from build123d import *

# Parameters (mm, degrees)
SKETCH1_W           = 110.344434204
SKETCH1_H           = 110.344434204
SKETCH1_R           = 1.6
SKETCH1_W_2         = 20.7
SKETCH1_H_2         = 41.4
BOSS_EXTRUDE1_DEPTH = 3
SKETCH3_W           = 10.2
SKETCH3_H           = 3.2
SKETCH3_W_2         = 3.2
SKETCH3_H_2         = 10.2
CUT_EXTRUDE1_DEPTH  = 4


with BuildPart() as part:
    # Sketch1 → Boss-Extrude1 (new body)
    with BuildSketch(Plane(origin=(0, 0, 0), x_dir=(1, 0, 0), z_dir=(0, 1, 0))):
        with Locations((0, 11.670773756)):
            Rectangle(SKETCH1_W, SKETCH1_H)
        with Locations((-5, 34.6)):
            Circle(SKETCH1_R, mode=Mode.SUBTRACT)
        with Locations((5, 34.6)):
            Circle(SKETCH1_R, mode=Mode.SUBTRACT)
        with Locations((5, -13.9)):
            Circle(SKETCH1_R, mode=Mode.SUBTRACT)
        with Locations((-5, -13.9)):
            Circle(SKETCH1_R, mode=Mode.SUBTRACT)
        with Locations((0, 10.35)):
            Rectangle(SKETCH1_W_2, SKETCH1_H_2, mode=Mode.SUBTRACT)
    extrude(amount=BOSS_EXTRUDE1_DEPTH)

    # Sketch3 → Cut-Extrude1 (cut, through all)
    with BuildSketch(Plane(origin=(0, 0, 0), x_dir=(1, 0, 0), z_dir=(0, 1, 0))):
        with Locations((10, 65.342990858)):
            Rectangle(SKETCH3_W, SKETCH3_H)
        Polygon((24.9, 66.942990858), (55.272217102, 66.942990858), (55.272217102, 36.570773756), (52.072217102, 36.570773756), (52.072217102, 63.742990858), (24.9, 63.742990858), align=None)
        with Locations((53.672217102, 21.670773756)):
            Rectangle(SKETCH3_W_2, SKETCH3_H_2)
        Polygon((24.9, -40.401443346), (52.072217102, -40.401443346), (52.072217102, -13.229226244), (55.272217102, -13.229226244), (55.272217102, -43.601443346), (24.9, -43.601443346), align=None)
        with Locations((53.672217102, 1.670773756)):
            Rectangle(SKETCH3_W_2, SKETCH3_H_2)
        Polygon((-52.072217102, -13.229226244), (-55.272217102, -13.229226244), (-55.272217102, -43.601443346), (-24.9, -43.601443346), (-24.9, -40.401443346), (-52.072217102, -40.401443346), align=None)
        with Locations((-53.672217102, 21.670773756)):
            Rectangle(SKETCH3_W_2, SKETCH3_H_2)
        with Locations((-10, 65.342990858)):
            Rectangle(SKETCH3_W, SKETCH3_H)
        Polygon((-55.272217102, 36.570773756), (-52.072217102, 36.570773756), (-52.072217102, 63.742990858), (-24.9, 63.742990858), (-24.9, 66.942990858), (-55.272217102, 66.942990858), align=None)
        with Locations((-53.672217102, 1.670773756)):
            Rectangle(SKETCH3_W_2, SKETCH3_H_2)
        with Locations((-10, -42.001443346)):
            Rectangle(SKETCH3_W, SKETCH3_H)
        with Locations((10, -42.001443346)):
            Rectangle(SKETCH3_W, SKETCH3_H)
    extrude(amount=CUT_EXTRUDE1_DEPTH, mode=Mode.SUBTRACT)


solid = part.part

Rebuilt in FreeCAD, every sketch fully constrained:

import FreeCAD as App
import Part
import Sketcher

V = App.Vector

doc = App.newDocument("Part")
body = doc.addObject("PartDesign::Body", "Body")

# Sketch on XZ plane
sketch1 = body.newObject("Sketcher::SketchObject", "Sketch")
sketch1.AttachmentSupport = (doc.getObject("XZ_Plane"), [""])
sketch1.MapMode = "FlatFace"
sketch1.addGeometry([
    Part.LineSegment(V(-55.172217, -66.842991, 0), V(-55.172217, 43.501443, 0)),  # 0
    Part.LineSegment(V(-55.172217, 43.501443, 0), V(55.172217, 43.501443, 0)),  # 1
    Part.LineSegment(V(55.172217, 43.501443, 0), V(55.172217, -66.842991, 0)),  # 2
    Part.LineSegment(V(55.172217, -66.842991, 0), V(-55.172217, -66.842991, 0)),  # 3
    Part.Circle(V(-5, 13.9, 0), V(0, 0, 1), 1.6),  # 4
    Part.Circle(V(5, 13.9, 0), V(0, 0, 1), 1.6),  # 5
    Part.Circle(V(-5, -34.6, 0), V(0, 0, 1), 1.6),  # 6
    Part.LineSegment(V(10.35, 10.35, 0), V(-10.35, 10.35, 0)),  # 7
    Part.LineSegment(V(-10.35, 10.35, 0), V(-10.35, -31.05, 0)),  # 8
    Part.LineSegment(V(-10.35, -31.05, 0), V(10.35, -31.05, 0)),  # 9
    Part.LineSegment(V(10.35, -31.05, 0), V(10.35, 10.35, 0)),  # 10
    Part.Circle(V(5, -34.6, 0), V(0, 0, 1), 1.6),  # 11
], False)
sketch1.addConstraint([
    Sketcher.Constraint("Coincident", 0, 2, 1, 1),
    Sketcher.Constraint("Coincident", 1, 2, 2, 1),
    Sketcher.Constraint("Coincident", 2, 2, 3, 1),
    Sketcher.Constraint("Coincident", 3, 2, 0, 1),
    Sketcher.Constraint("Coincident", 7, 2, 8, 1),
    Sketcher.Constraint("Coincident", 8, 2, 9, 1),
    Sketcher.Constraint("Coincident", 9, 2, 10, 1),
    Sketcher.Constraint("Coincident", 10, 2, 7, 1),
    Sketcher.Constraint("Vertical", 0),
    Sketcher.Constraint("Horizontal", 1),
    Sketcher.Constraint("Vertical", 2),
    Sketcher.Constraint("Horizontal", 3),
    Sketcher.Constraint("Horizontal", 7),
    Sketcher.Constraint("Vertical", 8),
    Sketcher.Constraint("Horizontal", 9),
    Sketcher.Constraint("Vertical", 10),
    Sketcher.Constraint("Equal", 4, 5),
    Sketcher.Constraint("Equal", 5, 6),
    Sketcher.Constraint("Equal", 6, 11),
    Sketcher.Constraint("Symmetric", 4, 3, 5, 3, -2),
    Sketcher.Constraint("Symmetric", 6, 3, 11, 3, -2),
    Sketcher.Constraint("Vertical", 4, 3, 6, 3),
    Sketcher.Constraint("Equal", 3, 0),
    Sketcher.Constraint("Diameter", 4, 3.2),
    Sketcher.Constraint("DistanceX", 7, 2, 7, 1, 20.7),
    Sketcher.Constraint("DistanceY", 8, 2, 8, 1, 41.4),
    Sketcher.Constraint("DistanceX", 4, 3, -1, 1, 5.0),
    Sketcher.Constraint("DistanceY", -1, 1, 4, 3, 13.9),
    Sketcher.Constraint("DistanceY", 6, 3, -1, 1, 34.6),
    Sketcher.Constraint("DistanceX", 7, 2, -1, 1, 10.35),
    Sketcher.Constraint("DistanceY", -1, 1, 7, 2, 10.35),
    Sketcher.Constraint("DistanceX", 1, 1, 1, 2, 110.344434),
    Sketcher.Constraint("DistanceY", 2, 2, -1, 1, 66.842991),
    Sketcher.Constraint("DistanceX", 0, 2, -1, 1, 55.172217),
])
pad1 = body.newObject("PartDesign::Pad", "Pad")
pad1.Profile = sketch1
pad1.Length = 3
pad1.Reversed = True

# Sketch on XZ plane
sketch2 = body.newObject("Sketcher::SketchObject", "Sketch001")
sketch2.AttachmentSupport = (doc.getObject("XZ_Plane"), [""])
sketch2.MapMode = "FlatFace"
sketch2.addGeometry([
    Part.LineSegment(V(4.9, -66.942991, 0), V(4.9, -63.742991, 0)),  # 0
    Part.LineSegment(V(4.9, -63.742991, 0), V(15.1, -63.742991, 0)),  # 1
    Part.LineSegment(V(15.1, -63.742991, 0), V(15.1, -66.942991, 0)),  # 2
    Part.LineSegment(V(15.1, -66.942991, 0), V(4.9, -66.942991, 0)),  # 3
    Part.LineSegment(V(55.272217, -66.942991, 0), V(24.9, -66.942991, 0)),  # 4
    Part.LineSegment(V(24.9, -66.942991, 0), V(24.9, -63.742991, 0)),  # 5
    Part.LineSegment(V(24.9, -63.742991, 0), V(52.072217, -63.742991, 0)),  # 6
    Part.LineSegment(V(52.072217, -63.742991, 0), V(52.072217, -36.570774, 0)),  # 7
    Part.LineSegment(V(52.072217, -36.570774, 0), V(55.272217, -36.570774, 0)),  # 8
    Part.LineSegment(V(55.272217, -36.570774, 0), V(55.272217, -66.942991, 0)),  # 9
    Part.LineSegment(V(52.072217, -26.770774, 0), V(52.072217, -16.570774, 0)),  # 10
    Part.LineSegment(V(52.072217, -16.570774, 0), V(55.272217, -16.570774, 0)),  # 11
    Part.LineSegment(V(55.272217, -16.570774, 0), V(55.272217, -26.770774, 0)),  # 12
    Part.LineSegment(V(55.272217, -26.770774, 0), V(52.072217, -26.770774, 0)),  # 13
    Part.LineSegment(V(52.072217, 40.401443, 0), V(24.9, 40.401443, 0)),  # 14
    Part.LineSegment(V(24.9, 40.401443, 0), V(24.9, 43.601443, 0)),  # 15
    Part.LineSegment(V(24.9, 43.601443, 0), V(55.272217, 43.601443, 0)),  # 16
    Part.LineSegment(V(55.272217, 43.601443, 0), V(55.272217, 13.229226, 0)),  # 17
    Part.LineSegment(V(55.272217, 13.229226, 0), V(52.072217, 13.229226, 0)),  # 18
    Part.LineSegment(V(52.072217, 13.229226, 0), V(52.072217, 40.401443, 0)),  # 19
    Part.LineSegment(V(52.072217, -6.770774, 0), V(52.072217, 3.429226, 0)),  # 20
    Part.LineSegment(V(52.072217, 3.429226, 0), V(55.272217, 3.429226, 0)),  # 21
    Part.LineSegment(V(55.272217, 3.429226, 0), V(55.272217, -6.770774, 0)),  # 22
    Part.LineSegment(V(55.272217, -6.770774, 0), V(52.072217, -6.770774, 0)),  # 23
    Part.LineSegment(V(-52.072217, 13.229226, 0), V(-55.272217, 13.229226, 0)),  # 24
    Part.LineSegment(V(-55.272217, 13.229226, 0), V(-55.272217, 43.601443, 0)),  # 25
    Part.LineSegment(V(-55.272217, 43.601443, 0), V(-24.9, 43.601443, 0)),  # 26
    Part.LineSegment(V(-24.9, 43.601443, 0), V(-24.9, 40.401443, 0)),  # 27
    Part.LineSegment(V(-24.9, 40.401443, 0), V(-52.072217, 40.401443, 0)),  # 28
    Part.LineSegment(V(-52.072217, 40.401443, 0), V(-52.072217, 13.229226, 0)),  # 29
    Part.LineSegment(V(-55.272217, -26.770774, 0), V(-55.272217, -16.570774, 0)),  # 30
    Part.LineSegment(V(-55.272217, -16.570774, 0), V(-52.072217, -16.570774, 0)),  # 31
    Part.LineSegment(V(-52.072217, -16.570774, 0), V(-52.072217, -26.770774, 0)),  # 32
    Part.LineSegment(V(-52.072217, -26.770774, 0), V(-55.272217, -26.770774, 0)),  # 33
    Part.LineSegment(V(-15.1, -66.942991, 0), V(-15.1, -63.742991, 0)),  # 34
    Part.LineSegment(V(-15.1, -63.742991, 0), V(-4.9, -63.742991, 0)),  # 35
    Part.LineSegment(V(-4.9, -63.742991, 0), V(-4.9, -66.942991, 0)),  # 36
    Part.LineSegment(V(-4.9, -66.942991, 0), V(-15.1, -66.942991, 0)),  # 37
    Part.LineSegment(V(-55.272217, -36.570774, 0), V(-52.072217, -36.570774, 0)),  # 38
    Part.LineSegment(V(-52.072217, -36.570774, 0), V(-52.072217, -63.742991, 0)),  # 39
    Part.LineSegment(V(-52.072217, -63.742991, 0), V(-24.9, -63.742991, 0)),  # 40
    Part.LineSegment(V(-24.9, -63.742991, 0), V(-24.9, -66.942991, 0)),  # 41
    Part.LineSegment(V(-24.9, -66.942991, 0), V(-55.272217, -66.942991, 0)),  # 42
    Part.LineSegment(V(-55.272217, -66.942991, 0), V(-55.272217, -36.570774, 0)),  # 43
    Part.LineSegment(V(-55.272217, -6.770774, 0), V(-55.272217, 3.429226, 0)),  # 44
    Part.LineSegment(V(-55.272217, 3.429226, 0), V(-52.072217, 3.429226, 0)),  # 45
    Part.LineSegment(V(-52.072217, 3.429226, 0), V(-52.072217, -6.770774, 0)),  # 46
    Part.LineSegment(V(-52.072217, -6.770774, 0), V(-55.272217, -6.770774, 0)),  # 47
    Part.LineSegment(V(-15.1, 40.401443, 0), V(-15.1, 43.601443, 0)),  # 48
    Part.LineSegment(V(-15.1, 43.601443, 0), V(-4.9, 43.601443, 0)),  # 49
    Part.LineSegment(V(-4.9, 43.601443, 0), V(-4.9, 40.401443, 0)),  # 50
    Part.LineSegment(V(-4.9, 40.401443, 0), V(-15.1, 40.401443, 0)),  # 51
    Part.LineSegment(V(4.9, 40.401443, 0), V(4.9, 43.601443, 0)),  # 52
    Part.LineSegment(V(4.9, 43.601443, 0), V(15.1, 43.601443, 0)),  # 53
    Part.LineSegment(V(15.1, 43.601443, 0), V(15.1, 40.401443, 0)),  # 54
    Part.LineSegment(V(15.1, 40.401443, 0), V(4.9, 40.401443, 0)),  # 55
], False)
sketch2.addConstraint([
    Sketcher.Constraint("Coincident", 0, 2, 1, 1),
    Sketcher.Constraint("Coincident", 1, 2, 2, 1),
    Sketcher.Constraint("Coincident", 2, 2, 3, 1),
    Sketcher.Constraint("Coincident", 3, 2, 0, 1),
    Sketcher.Constraint("Coincident", 4, 2, 5, 1),
    Sketcher.Constraint("Coincident", 5, 2, 6, 1),
    Sketcher.Constraint("Coincident", 6, 2, 7, 1),
    Sketcher.Constraint("Coincident", 7, 2, 8, 1),
    Sketcher.Constraint("Coincident", 8, 2, 9, 1),
    Sketcher.Constraint("Coincident", 9, 2, 4, 1),
    Sketcher.Constraint("Coincident", 10, 2, 11, 1),
    Sketcher.Constraint("Coincident", 11, 2, 12, 1),
    Sketcher.Constraint("Coincident", 12, 2, 13, 1),
    Sketcher.Constraint("Coincident", 13, 2, 10, 1),
    Sketcher.Constraint("Coincident", 14, 2, 15, 1),
    Sketcher.Constraint("Coincident", 15, 2, 16, 1),
    Sketcher.Constraint("Coincident", 16, 2, 17, 1),
    Sketcher.Constraint("Coincident", 17, 2, 18, 1),
    Sketcher.Constraint("Coincident", 18, 2, 19, 1),
    Sketcher.Constraint("Coincident", 19, 2, 14, 1),
    Sketcher.Constraint("Coincident", 20, 2, 21, 1),
    Sketcher.Constraint("Coincident", 21, 2, 22, 1),
    Sketcher.Constraint("Coincident", 22, 2, 23, 1),
    Sketcher.Constraint("Coincident", 23, 2, 20, 1),
    Sketcher.Constraint("Coincident", 24, 2, 25, 1),
    Sketcher.Constraint("Coincident", 25, 2, 26, 1),
    Sketcher.Constraint("Coincident", 26, 2, 27, 1),
    Sketcher.Constraint("Coincident", 27, 2, 28, 1),
    Sketcher.Constraint("Coincident", 28, 2, 29, 1),
    Sketcher.Constraint("Coincident", 29, 2, 24, 1),
    Sketcher.Constraint("Coincident", 30, 2, 31, 1),
    Sketcher.Constraint("Coincident", 31, 2, 32, 1),
    Sketcher.Constraint("Coincident", 32, 2, 33, 1),
    Sketcher.Constraint("Coincident", 33, 2, 30, 1),
    Sketcher.Constraint("Coincident", 34, 2, 35, 1),
    Sketcher.Constraint("Coincident", 35, 2, 36, 1),
    Sketcher.Constraint("Coincident", 36, 2, 37, 1),
    Sketcher.Constraint("Coincident", 37, 2, 34, 1),
    Sketcher.Constraint("Coincident", 38, 2, 39, 1),
    Sketcher.Constraint("Coincident", 39, 2, 40, 1),
    Sketcher.Constraint("Coincident", 40, 2, 41, 1),
    Sketcher.Constraint("Coincident", 41, 2, 42, 1),
    Sketcher.Constraint("Coincident", 42, 2, 43, 1),
    Sketcher.Constraint("Coincident", 43, 2, 38, 1),
    Sketcher.Constraint("Coincident", 44, 2, 45, 1),
    Sketcher.Constraint("Coincident", 45, 2, 46, 1),
    Sketcher.Constraint("Coincident", 46, 2, 47, 1),
    Sketcher.Constraint("Coincident", 47, 2, 44, 1),
    Sketcher.Constraint("Coincident", 48, 2, 49, 1),
    Sketcher.Constraint("Coincident", 49, 2, 50, 1),
    Sketcher.Constraint("Coincident", 50, 2, 51, 1),
    Sketcher.Constraint("Coincident", 51, 2, 48, 1),
    Sketcher.Constraint("Coincident", 52, 2, 53, 1),
    Sketcher.Constraint("Coincident", 53, 2, 54, 1),
    Sketcher.Constraint("Coincident", 54, 2, 55, 1),
    Sketcher.Constraint("Coincident", 55, 2, 52, 1),
    Sketcher.Constraint("Vertical", 0),
    Sketcher.Constraint("Horizontal", 1),
    Sketcher.Constraint("Vertical", 2),
    Sketcher.Constraint("Horizontal", 3),
    Sketcher.Constraint("Horizontal", 4),
    Sketcher.Constraint("Vertical", 5),
    Sketcher.Constraint("Horizontal", 6),
    Sketcher.Constraint("Vertical", 7),
    Sketcher.Constraint("Horizontal", 8),
    Sketcher.Constraint("Vertical", 9),
    Sketcher.Constraint("Vertical", 10),
    Sketcher.Constraint("Horizontal", 11),
    Sketcher.Constraint("Vertical", 12),
    Sketcher.Constraint("Horizontal", 13),
    Sketcher.Constraint("Horizontal", 14),
    Sketcher.Constraint("Vertical", 15),
    Sketcher.Constraint("Horizontal", 16),
    Sketcher.Constraint("Vertical", 17),
    Sketcher.Constraint("Horizontal", 18),
    Sketcher.Constraint("Vertical", 19),
    Sketcher.Constraint("Vertical", 20),
    Sketcher.Constraint("Horizontal", 21),
    Sketcher.Constraint("Vertical", 22),
    Sketcher.Constraint("Horizontal", 23),
    Sketcher.Constraint("Horizontal", 24),
    Sketcher.Constraint("Vertical", 25),
    Sketcher.Constraint("Horizontal", 26),
    Sketcher.Constraint("Vertical", 27),
    Sketcher.Constraint("Horizontal", 28),
    Sketcher.Constraint("Vertical", 29),
    Sketcher.Constraint("Vertical", 30),
    Sketcher.Constraint("Horizontal", 31),
    Sketcher.Constraint("Vertical", 32),
    Sketcher.Constraint("Horizontal", 33),
    Sketcher.Constraint("Vertical", 34),
    Sketcher.Constraint("Horizontal", 35),
    Sketcher.Constraint("Vertical", 36),
    Sketcher.Constraint("Horizontal", 37),
    Sketcher.Constraint("Horizontal", 38),
    Sketcher.Constraint("Vertical", 39),
    Sketcher.Constraint("Horizontal", 40),
    Sketcher.Constraint("Vertical", 41),
    Sketcher.Constraint("Horizontal", 42),
    Sketcher.Constraint("Vertical", 43),
    Sketcher.Constraint("Vertical", 44),
    Sketcher.Constraint("Horizontal", 45),
    Sketcher.Constraint("Vertical", 46),
    Sketcher.Constraint("Horizontal", 47),
    Sketcher.Constraint("Vertical", 48),
    Sketcher.Constraint("Horizontal", 49),
    Sketcher.Constraint("Vertical", 50),
    Sketcher.Constraint("Horizontal", 51),
    Sketcher.Constraint("Vertical", 52),
    Sketcher.Constraint("Horizontal", 53),
    Sketcher.Constraint("Vertical", 54),
    Sketcher.Constraint("Horizontal", 55),
    Sketcher.Constraint("Symmetric", 17, 2, 24, 2, -2),
    Sketcher.Constraint("Symmetric", 15, 2, 26, 2, -2),
    Sketcher.Constraint("Symmetric", 19, 2, 28, 2, -2),
    Sketcher.Constraint("Symmetric", 11, 2, 30, 2, -2),
    Sketcher.Constraint("Symmetric", 13, 2, 32, 2, -2),
    Sketcher.Constraint("Symmetric", 1, 2, 34, 2, -2),
    Sketcher.Constraint("Symmetric", 3, 2, 36, 2, -2),
    Sketcher.Constraint("Symmetric", 7, 2, 38, 2, -2),
    Sketcher.Constraint("Symmetric", 5, 2, 40, 2, -2),
    Sketcher.Constraint("Symmetric", 9, 2, 42, 2, -2),
    Sketcher.Constraint("Symmetric", 21, 2, 44, 2, -2),
    Sketcher.Constraint("Symmetric", 23, 2, 46, 2, -2),
    Sketcher.Constraint("Symmetric", 49, 2, 52, 2, -2),
    Sketcher.Constraint("Symmetric", 51, 2, 54, 2, -2),
    Sketcher.Constraint("Horizontal", 3, 2, 4, 2),
    Sketcher.Constraint("Horizontal", 1, 2, 5, 2),
    Sketcher.Constraint("Horizontal", 26, 2, 48, 2),
    Sketcher.Constraint("Horizontal", 28, 2, 50, 2),
    Sketcher.Constraint("Vertical", 7, 2, 10, 2),
    Sketcher.Constraint("Vertical", 9, 2, 11, 2),
    Sketcher.Constraint("Vertical", 5, 2, 14, 2),
    Sketcher.Constraint("Vertical", 12, 2, 16, 2),
    Sketcher.Constraint("Vertical", 13, 2, 18, 2),
    Sketcher.Constraint("Vertical", 19, 2, 20, 2),
    Sketcher.Constraint("Vertical", 17, 2, 21, 2),
    Sketcher.Constraint("Vertical", 37, 2, 48, 2),
    Sketcher.Constraint("Vertical", 36, 2, 49, 2),
    Sketcher.Constraint("Equal", 47, 0),
    Sketcher.Constraint("Equal", 40, 7),
    Sketcher.Constraint("Equal", 55, 10),
    Sketcher.Constraint("Equal", 5, 15),
    Sketcher.Constraint("Equal", 9, 17),
    Sketcher.Constraint("Equal", 12, 20),
    Sketcher.Constraint("DistanceX", 1, 1, 1, 2, 10.2),
    Sketcher.Constraint("DistanceX", 8, 1, 8, 2, 3.2),
    Sketcher.Constraint("DistanceX", 3, 2, 4, 2, 20.0),
    Sketcher.Constraint("DistanceY", 7, 2, 10, 2, 20.0),
    Sketcher.Constraint("DistanceY", 12, 2, 17, 2, 40.0),
    Sketcher.Constraint("DistanceY", 10, 2, 20, 2, 20.0),
    Sketcher.Constraint("DistanceX", 34, 2, 0, 2, 20.0),
    Sketcher.Constraint("DistanceX", 4, 2, 4, 1, 30.372217),
    Sketcher.Constraint("DistanceY", 0, 2, -1, 1, 63.742991),
])
pocket1 = body.newObject("PartDesign::Pocket", "Pocket")
pocket1.Profile = sketch2
pocket1.Type = "ThroughAll"

doc.recompute()
